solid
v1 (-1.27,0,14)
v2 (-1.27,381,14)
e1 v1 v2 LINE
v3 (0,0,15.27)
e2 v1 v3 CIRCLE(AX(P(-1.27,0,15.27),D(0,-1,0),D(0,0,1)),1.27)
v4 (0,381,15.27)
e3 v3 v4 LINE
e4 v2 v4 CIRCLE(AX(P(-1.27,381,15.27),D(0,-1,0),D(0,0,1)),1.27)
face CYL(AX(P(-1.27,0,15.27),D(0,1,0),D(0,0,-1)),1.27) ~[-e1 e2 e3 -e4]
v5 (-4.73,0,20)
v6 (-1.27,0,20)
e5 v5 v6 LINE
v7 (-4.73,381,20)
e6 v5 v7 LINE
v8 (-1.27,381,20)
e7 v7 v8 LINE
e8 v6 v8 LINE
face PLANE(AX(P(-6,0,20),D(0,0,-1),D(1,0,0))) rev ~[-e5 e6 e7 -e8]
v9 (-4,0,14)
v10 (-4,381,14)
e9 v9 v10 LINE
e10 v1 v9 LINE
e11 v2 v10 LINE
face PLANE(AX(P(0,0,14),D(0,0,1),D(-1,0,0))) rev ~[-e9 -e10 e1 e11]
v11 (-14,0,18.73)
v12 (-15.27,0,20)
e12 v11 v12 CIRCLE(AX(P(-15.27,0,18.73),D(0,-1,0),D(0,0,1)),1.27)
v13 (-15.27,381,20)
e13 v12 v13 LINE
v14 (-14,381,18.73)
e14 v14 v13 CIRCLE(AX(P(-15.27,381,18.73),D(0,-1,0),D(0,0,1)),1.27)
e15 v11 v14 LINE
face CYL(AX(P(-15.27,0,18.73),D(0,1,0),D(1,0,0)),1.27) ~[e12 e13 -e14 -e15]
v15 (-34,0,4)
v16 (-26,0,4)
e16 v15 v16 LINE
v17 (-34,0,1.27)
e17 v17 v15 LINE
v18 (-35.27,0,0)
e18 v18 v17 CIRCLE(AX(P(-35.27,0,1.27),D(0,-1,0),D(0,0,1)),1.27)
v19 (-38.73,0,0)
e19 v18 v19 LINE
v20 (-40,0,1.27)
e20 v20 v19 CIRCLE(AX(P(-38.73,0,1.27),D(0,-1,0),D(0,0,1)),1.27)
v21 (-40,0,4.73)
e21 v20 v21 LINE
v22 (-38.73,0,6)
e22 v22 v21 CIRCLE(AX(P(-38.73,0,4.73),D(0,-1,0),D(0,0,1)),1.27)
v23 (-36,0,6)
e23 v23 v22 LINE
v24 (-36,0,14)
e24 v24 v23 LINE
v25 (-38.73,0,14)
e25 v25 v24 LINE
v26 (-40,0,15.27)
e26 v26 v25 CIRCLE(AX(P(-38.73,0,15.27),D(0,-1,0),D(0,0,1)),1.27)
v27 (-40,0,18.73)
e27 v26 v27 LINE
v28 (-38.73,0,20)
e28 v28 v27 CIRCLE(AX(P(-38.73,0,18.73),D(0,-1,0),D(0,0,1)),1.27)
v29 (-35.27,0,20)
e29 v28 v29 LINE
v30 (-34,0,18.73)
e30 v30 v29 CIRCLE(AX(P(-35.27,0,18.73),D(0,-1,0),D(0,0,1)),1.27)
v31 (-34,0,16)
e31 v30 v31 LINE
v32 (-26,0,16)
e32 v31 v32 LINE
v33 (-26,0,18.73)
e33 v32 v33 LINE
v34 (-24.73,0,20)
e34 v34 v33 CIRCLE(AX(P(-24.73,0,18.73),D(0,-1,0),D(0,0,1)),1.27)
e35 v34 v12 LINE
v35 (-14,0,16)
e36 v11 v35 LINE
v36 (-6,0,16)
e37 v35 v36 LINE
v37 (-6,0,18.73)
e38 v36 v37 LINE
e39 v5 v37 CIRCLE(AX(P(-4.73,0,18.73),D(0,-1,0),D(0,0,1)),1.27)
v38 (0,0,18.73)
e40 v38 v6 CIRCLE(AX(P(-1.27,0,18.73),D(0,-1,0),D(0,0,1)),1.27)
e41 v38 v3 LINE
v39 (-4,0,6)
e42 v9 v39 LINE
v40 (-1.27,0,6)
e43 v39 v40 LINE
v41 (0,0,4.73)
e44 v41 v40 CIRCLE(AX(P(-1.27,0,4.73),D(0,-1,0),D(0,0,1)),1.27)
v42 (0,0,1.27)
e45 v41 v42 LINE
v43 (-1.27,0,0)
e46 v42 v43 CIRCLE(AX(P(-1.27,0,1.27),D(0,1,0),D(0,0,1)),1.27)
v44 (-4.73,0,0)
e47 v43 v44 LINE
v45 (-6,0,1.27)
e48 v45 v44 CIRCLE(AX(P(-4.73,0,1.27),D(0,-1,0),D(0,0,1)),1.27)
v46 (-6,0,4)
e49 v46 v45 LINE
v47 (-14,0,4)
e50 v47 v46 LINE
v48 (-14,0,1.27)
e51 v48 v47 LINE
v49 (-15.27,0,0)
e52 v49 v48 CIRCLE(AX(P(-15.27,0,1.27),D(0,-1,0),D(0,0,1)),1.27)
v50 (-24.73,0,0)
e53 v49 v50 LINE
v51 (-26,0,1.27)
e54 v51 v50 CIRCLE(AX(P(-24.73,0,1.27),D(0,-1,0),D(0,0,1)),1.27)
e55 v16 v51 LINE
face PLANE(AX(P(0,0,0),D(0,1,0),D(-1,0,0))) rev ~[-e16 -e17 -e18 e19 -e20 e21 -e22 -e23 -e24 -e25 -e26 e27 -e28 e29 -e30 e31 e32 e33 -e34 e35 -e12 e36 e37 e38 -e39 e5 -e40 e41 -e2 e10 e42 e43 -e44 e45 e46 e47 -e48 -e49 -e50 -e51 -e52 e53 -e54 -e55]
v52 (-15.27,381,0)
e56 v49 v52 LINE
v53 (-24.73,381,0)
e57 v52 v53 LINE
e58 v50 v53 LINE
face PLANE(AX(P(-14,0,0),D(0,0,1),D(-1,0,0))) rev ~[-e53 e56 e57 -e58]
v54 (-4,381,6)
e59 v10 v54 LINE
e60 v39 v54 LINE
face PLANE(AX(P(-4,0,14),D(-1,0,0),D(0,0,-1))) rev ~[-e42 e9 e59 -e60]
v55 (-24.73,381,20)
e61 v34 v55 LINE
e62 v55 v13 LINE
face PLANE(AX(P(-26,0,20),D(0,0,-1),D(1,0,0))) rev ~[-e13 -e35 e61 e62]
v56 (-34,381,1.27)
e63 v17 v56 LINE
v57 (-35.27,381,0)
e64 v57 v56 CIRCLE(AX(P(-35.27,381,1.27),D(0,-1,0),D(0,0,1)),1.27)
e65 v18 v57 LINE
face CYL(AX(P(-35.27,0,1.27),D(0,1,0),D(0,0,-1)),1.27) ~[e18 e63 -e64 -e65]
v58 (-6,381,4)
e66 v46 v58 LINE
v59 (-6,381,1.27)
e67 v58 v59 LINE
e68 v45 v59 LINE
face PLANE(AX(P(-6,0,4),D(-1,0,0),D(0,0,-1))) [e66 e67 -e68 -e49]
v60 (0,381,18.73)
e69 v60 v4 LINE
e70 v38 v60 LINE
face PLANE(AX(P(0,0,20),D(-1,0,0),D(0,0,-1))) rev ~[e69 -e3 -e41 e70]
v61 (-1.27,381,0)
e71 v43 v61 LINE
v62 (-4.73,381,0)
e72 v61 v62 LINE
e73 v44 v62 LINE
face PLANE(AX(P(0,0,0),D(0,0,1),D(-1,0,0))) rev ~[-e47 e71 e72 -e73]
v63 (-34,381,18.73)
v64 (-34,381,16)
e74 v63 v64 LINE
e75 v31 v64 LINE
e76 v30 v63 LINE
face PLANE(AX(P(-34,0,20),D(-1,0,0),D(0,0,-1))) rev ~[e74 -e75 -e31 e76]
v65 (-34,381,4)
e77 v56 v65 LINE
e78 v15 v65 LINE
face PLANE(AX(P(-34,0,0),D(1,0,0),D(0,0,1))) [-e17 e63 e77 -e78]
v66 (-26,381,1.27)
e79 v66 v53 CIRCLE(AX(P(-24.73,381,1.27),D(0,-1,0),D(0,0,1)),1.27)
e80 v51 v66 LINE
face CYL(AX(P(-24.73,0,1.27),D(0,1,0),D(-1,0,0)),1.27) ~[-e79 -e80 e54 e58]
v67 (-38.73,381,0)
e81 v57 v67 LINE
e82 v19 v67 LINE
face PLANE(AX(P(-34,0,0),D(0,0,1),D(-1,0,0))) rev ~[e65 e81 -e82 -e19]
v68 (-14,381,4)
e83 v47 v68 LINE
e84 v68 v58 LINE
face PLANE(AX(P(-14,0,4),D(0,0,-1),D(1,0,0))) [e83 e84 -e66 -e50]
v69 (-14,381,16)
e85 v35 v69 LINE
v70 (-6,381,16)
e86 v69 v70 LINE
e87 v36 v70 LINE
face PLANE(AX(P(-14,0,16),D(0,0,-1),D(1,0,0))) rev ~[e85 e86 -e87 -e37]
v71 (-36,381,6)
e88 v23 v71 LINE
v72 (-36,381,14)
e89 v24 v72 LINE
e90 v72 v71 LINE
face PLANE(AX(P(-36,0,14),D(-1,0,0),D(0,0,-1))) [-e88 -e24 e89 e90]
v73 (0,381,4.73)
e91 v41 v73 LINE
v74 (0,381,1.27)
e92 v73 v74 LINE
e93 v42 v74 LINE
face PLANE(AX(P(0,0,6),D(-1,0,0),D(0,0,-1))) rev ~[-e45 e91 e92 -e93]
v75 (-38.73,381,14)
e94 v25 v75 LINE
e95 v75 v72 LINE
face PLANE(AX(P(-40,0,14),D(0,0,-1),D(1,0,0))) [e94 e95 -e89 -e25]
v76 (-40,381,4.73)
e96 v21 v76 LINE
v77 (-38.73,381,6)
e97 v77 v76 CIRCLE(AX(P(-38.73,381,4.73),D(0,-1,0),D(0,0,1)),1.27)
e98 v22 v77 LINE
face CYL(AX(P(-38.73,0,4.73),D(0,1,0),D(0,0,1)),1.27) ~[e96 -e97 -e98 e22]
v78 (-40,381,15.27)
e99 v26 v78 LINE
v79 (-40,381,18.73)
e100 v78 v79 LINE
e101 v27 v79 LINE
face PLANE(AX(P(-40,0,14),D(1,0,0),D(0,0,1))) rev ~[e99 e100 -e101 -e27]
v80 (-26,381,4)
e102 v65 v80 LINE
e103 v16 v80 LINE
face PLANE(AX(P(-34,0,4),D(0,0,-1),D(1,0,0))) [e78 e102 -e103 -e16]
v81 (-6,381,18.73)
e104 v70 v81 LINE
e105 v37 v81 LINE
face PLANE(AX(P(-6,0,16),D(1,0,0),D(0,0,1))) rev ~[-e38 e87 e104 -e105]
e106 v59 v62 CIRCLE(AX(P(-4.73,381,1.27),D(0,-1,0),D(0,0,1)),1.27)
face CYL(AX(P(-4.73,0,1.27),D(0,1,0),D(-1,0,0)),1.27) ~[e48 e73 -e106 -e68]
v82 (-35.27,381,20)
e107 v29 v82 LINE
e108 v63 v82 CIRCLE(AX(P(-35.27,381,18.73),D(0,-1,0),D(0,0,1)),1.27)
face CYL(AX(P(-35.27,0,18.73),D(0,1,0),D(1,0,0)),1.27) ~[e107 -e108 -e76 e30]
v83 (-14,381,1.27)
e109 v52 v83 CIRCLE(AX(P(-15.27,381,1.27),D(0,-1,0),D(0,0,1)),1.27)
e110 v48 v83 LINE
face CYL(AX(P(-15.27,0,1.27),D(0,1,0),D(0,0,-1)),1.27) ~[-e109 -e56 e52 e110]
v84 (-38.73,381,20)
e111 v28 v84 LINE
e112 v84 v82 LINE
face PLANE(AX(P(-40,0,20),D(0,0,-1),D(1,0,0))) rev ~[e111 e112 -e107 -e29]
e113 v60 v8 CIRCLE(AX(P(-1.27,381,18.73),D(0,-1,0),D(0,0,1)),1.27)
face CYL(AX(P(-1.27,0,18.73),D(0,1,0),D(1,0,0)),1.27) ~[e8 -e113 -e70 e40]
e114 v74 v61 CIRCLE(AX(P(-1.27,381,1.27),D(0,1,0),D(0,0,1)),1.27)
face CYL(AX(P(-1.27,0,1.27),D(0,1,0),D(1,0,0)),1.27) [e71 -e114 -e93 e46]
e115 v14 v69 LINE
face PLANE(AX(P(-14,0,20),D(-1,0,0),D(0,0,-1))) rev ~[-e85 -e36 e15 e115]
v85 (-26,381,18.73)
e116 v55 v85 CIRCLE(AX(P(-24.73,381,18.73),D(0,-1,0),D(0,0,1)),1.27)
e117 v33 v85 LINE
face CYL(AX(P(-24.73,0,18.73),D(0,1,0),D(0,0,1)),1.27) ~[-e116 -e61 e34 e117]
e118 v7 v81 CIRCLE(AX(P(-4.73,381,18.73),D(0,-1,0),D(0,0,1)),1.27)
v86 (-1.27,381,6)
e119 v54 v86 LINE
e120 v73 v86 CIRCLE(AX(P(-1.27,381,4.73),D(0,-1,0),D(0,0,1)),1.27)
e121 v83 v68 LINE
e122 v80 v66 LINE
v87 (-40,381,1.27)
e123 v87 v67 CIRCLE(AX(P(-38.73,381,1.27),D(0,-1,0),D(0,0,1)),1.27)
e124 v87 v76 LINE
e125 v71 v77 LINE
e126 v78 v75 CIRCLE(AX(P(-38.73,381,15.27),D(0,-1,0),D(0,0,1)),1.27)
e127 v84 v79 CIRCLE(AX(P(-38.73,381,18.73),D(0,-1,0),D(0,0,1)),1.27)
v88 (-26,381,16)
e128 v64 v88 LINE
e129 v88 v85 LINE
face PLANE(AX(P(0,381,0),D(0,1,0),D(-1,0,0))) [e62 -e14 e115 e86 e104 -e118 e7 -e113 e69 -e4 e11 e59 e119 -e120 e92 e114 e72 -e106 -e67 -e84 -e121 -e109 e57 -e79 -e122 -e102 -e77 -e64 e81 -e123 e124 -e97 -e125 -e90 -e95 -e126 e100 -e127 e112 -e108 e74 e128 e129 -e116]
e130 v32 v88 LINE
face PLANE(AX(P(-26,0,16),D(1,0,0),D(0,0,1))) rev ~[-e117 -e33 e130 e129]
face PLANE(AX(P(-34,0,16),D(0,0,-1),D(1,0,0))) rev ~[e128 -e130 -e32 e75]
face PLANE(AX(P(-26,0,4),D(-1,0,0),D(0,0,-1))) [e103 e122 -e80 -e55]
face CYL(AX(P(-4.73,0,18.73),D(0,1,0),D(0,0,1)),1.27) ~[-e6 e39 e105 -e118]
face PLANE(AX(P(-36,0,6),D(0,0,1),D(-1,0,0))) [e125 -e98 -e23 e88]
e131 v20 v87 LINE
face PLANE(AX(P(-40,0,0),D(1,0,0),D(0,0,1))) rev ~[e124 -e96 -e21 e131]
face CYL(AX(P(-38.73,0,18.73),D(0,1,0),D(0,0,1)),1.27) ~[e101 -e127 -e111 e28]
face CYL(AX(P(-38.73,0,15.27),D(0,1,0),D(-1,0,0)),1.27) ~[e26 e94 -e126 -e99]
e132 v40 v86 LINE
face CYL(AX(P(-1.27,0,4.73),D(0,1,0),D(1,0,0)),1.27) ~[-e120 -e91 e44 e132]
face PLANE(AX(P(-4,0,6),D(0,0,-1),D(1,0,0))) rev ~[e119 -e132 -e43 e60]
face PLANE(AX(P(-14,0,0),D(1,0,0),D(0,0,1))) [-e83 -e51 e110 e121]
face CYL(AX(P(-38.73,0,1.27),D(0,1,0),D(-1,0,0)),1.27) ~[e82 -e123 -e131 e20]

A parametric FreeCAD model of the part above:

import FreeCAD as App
import Part
import Sketcher
from FreeCAD import Vector


def edges_at(feature, points):
    """Names of the edges that pass closest to the given points."""
    edges = feature.Shape.Edges
    near = lambda p: min(range(len(edges)), key=lambda i: edges[i].distToShape(Part.Vertex(*p))[0])
    return sorted({f"Edge{near(p) + 1}" for p in points})


def add_polygon(sketch, points):
    """Adds a closed chain of lines whose ends are joined by coincident constraints."""
    first, n = sketch.GeometryCount, len(points)
    for a, b in zip(points, points[1:] + points[:1]):
        sketch.addGeometry(Part.LineSegment(App.Vector(*a, 0), App.Vector(*b, 0)), False)
    for i in range(n):
        sketch.addConstraint(Sketcher.Constraint("Coincident", first + i, 2, first + (i + 1) % n, 1))

doc = App.newDocument("Part")
body = doc.addObject("PartDesign::Body", "Body")

# Sketch on XZ plane
sketch1 = body.newObject("Sketcher::SketchObject", "Sketch")
sketch1.AttachmentSupport = (doc.getObject("XZ_Plane"), [""])
sketch1.MapMode = "FlatFace"
add_polygon(sketch1, [(0, 6), (0, 0), (-6, 0), (-6, 4), (-14, 4), (-14, 0), (-26, 0), (-26, 4), (-34, 4), (-34, 0), (-40, 0), (-40, 6), (-36, 6), (-36, 14), (-40, 14), (-40, 20), (-34, 20), (-34, 16), (-26, 16), (-26, 20), (-14, 20), (-14, 16), (-6, 16), (-6, 20), (0, 20), (0, 14), (-4, 14), (-4, 6)])  # lines 0-27
sketch1.addConstraint([
    Sketcher.Constraint("Vertical", 0),
    Sketcher.Constraint("Horizontal", 1),
    Sketcher.Constraint("Vertical", 2),
    Sketcher.Constraint("Horizontal", 3),
    Sketcher.Constraint("Vertical", 4),
    Sketcher.Constraint("Horizontal", 5),
    Sketcher.Constraint("Vertical", 6),
    Sketcher.Constraint("Horizontal", 7),
    Sketcher.Constraint("Vertical", 8),
    Sketcher.Constraint("Horizontal", 9),
    Sketcher.Constraint("Vertical", 10),
    Sketcher.Constraint("Horizontal", 11),
    Sketcher.Constraint("Vertical", 12),
    Sketcher.Constraint("Horizontal", 13),
    Sketcher.Constraint("Vertical", 14),
    Sketcher.Constraint("Horizontal", 15),
    Sketcher.Constraint("Vertical", 16),
    Sketcher.Constraint("Horizontal", 17),
    Sketcher.Constraint("Vertical", 18),
    Sketcher.Constraint("Horizontal", 19),
    Sketcher.Constraint("Vertical", 20),
    Sketcher.Constraint("Horizontal", 21),
    Sketcher.Constraint("Vertical", 22),
    Sketcher.Constraint("Horizontal", 23),
    Sketcher.Constraint("Vertical", 24),
    Sketcher.Constraint("Horizontal", 25),
    Sketcher.Constraint("Vertical", 26),
    Sketcher.Constraint("Horizontal", 27),
    Sketcher.Constraint("Coincident", 0, 2, -1, 1),
    Sketcher.Constraint("PointOnObject", 4, 2, -1),
    Sketcher.Constraint("PointOnObject", 8, 2, -1),
    Sketcher.Constraint("PointOnObject", 23, 2, -2),
    Sketcher.Constraint("Horizontal", 3, 2, 6, 2),
    Sketcher.Constraint("Horizontal", 15, 2, 18, 2),
    Sketcher.Constraint("Horizontal", 17, 2, 20, 2),
    Sketcher.Constraint("Horizontal", 19, 2, 22, 2),
    Sketcher.Constraint("Horizontal", 13, 2, 24, 2),
    Sketcher.Constraint("Horizontal", 11, 2, 26, 2),
    Sketcher.Constraint("Vertical", 10, 2, 13, 2),
    Sketcher.Constraint("Vertical", 8, 2, 15, 2),
    Sketcher.Constraint("Vertical", 6, 2, 17, 2),
    Sketcher.Constraint("Vertical", 4, 2, 19, 2),
    Sketcher.Constraint("Vertical", 2, 2, 21, 2),
    Sketcher.Constraint("Equal", 3, 7),
    Sketcher.Constraint("Equal", 1, 9),
    Sketcher.Constraint("Equal", 13, 25),
    Sketcher.Constraint("Equal", 23, 0),
    Sketcher.Constraint("Equal", 27, 2),
    Sketcher.Constraint("Equal", 21, 12),
    Sketcher.Constraint("Equal", 10, 14),
    Sketcher.Constraint("Equal", 8, 16),
    Sketcher.Constraint("DistanceX", 1, 2, 1, 1, 6.0),
    Sketcher.Constraint("DistanceX", 3, 2, 3, 1, 8.0),
    Sketcher.Constraint("DistanceX", 11, 1, 11, 2, 4.0),
    Sketcher.Constraint("DistanceX", 9, 2, -1, 1, 40.0),
])
pad1 = body.newObject("PartDesign::Pad", "Pad")
pad1.Profile = sketch1
pad1.Length = 381
pad1.Reversed = True
doc.recompute()

fillet = body.newObject("PartDesign::Fillet", "Fillet")
fillet.Base = (pad1, edges_at(pad1, [
    (-40, 190.5, 20),
    (-40, 190.5, 14),
    (-40, 190.5, 6),
    (-40, 190.5, 0),
    (-34, 190.5, 0),
    (-34, 190.5, 20),
    (-26, 190.5, 20),
    (-14, 190.5, 20),
    (-6, 190.5, 20),
    (0, 190.5, 20),
    (0, 190.5, 14),
    (0, 190.5, 6),
    (0, 190.5, 0),
    (-6, 190.5, 0),
    (-14, 190.5, 0),
    (-26, 190.5, 0),
]))
fillet.Radius = 1.27

doc.recompute()
